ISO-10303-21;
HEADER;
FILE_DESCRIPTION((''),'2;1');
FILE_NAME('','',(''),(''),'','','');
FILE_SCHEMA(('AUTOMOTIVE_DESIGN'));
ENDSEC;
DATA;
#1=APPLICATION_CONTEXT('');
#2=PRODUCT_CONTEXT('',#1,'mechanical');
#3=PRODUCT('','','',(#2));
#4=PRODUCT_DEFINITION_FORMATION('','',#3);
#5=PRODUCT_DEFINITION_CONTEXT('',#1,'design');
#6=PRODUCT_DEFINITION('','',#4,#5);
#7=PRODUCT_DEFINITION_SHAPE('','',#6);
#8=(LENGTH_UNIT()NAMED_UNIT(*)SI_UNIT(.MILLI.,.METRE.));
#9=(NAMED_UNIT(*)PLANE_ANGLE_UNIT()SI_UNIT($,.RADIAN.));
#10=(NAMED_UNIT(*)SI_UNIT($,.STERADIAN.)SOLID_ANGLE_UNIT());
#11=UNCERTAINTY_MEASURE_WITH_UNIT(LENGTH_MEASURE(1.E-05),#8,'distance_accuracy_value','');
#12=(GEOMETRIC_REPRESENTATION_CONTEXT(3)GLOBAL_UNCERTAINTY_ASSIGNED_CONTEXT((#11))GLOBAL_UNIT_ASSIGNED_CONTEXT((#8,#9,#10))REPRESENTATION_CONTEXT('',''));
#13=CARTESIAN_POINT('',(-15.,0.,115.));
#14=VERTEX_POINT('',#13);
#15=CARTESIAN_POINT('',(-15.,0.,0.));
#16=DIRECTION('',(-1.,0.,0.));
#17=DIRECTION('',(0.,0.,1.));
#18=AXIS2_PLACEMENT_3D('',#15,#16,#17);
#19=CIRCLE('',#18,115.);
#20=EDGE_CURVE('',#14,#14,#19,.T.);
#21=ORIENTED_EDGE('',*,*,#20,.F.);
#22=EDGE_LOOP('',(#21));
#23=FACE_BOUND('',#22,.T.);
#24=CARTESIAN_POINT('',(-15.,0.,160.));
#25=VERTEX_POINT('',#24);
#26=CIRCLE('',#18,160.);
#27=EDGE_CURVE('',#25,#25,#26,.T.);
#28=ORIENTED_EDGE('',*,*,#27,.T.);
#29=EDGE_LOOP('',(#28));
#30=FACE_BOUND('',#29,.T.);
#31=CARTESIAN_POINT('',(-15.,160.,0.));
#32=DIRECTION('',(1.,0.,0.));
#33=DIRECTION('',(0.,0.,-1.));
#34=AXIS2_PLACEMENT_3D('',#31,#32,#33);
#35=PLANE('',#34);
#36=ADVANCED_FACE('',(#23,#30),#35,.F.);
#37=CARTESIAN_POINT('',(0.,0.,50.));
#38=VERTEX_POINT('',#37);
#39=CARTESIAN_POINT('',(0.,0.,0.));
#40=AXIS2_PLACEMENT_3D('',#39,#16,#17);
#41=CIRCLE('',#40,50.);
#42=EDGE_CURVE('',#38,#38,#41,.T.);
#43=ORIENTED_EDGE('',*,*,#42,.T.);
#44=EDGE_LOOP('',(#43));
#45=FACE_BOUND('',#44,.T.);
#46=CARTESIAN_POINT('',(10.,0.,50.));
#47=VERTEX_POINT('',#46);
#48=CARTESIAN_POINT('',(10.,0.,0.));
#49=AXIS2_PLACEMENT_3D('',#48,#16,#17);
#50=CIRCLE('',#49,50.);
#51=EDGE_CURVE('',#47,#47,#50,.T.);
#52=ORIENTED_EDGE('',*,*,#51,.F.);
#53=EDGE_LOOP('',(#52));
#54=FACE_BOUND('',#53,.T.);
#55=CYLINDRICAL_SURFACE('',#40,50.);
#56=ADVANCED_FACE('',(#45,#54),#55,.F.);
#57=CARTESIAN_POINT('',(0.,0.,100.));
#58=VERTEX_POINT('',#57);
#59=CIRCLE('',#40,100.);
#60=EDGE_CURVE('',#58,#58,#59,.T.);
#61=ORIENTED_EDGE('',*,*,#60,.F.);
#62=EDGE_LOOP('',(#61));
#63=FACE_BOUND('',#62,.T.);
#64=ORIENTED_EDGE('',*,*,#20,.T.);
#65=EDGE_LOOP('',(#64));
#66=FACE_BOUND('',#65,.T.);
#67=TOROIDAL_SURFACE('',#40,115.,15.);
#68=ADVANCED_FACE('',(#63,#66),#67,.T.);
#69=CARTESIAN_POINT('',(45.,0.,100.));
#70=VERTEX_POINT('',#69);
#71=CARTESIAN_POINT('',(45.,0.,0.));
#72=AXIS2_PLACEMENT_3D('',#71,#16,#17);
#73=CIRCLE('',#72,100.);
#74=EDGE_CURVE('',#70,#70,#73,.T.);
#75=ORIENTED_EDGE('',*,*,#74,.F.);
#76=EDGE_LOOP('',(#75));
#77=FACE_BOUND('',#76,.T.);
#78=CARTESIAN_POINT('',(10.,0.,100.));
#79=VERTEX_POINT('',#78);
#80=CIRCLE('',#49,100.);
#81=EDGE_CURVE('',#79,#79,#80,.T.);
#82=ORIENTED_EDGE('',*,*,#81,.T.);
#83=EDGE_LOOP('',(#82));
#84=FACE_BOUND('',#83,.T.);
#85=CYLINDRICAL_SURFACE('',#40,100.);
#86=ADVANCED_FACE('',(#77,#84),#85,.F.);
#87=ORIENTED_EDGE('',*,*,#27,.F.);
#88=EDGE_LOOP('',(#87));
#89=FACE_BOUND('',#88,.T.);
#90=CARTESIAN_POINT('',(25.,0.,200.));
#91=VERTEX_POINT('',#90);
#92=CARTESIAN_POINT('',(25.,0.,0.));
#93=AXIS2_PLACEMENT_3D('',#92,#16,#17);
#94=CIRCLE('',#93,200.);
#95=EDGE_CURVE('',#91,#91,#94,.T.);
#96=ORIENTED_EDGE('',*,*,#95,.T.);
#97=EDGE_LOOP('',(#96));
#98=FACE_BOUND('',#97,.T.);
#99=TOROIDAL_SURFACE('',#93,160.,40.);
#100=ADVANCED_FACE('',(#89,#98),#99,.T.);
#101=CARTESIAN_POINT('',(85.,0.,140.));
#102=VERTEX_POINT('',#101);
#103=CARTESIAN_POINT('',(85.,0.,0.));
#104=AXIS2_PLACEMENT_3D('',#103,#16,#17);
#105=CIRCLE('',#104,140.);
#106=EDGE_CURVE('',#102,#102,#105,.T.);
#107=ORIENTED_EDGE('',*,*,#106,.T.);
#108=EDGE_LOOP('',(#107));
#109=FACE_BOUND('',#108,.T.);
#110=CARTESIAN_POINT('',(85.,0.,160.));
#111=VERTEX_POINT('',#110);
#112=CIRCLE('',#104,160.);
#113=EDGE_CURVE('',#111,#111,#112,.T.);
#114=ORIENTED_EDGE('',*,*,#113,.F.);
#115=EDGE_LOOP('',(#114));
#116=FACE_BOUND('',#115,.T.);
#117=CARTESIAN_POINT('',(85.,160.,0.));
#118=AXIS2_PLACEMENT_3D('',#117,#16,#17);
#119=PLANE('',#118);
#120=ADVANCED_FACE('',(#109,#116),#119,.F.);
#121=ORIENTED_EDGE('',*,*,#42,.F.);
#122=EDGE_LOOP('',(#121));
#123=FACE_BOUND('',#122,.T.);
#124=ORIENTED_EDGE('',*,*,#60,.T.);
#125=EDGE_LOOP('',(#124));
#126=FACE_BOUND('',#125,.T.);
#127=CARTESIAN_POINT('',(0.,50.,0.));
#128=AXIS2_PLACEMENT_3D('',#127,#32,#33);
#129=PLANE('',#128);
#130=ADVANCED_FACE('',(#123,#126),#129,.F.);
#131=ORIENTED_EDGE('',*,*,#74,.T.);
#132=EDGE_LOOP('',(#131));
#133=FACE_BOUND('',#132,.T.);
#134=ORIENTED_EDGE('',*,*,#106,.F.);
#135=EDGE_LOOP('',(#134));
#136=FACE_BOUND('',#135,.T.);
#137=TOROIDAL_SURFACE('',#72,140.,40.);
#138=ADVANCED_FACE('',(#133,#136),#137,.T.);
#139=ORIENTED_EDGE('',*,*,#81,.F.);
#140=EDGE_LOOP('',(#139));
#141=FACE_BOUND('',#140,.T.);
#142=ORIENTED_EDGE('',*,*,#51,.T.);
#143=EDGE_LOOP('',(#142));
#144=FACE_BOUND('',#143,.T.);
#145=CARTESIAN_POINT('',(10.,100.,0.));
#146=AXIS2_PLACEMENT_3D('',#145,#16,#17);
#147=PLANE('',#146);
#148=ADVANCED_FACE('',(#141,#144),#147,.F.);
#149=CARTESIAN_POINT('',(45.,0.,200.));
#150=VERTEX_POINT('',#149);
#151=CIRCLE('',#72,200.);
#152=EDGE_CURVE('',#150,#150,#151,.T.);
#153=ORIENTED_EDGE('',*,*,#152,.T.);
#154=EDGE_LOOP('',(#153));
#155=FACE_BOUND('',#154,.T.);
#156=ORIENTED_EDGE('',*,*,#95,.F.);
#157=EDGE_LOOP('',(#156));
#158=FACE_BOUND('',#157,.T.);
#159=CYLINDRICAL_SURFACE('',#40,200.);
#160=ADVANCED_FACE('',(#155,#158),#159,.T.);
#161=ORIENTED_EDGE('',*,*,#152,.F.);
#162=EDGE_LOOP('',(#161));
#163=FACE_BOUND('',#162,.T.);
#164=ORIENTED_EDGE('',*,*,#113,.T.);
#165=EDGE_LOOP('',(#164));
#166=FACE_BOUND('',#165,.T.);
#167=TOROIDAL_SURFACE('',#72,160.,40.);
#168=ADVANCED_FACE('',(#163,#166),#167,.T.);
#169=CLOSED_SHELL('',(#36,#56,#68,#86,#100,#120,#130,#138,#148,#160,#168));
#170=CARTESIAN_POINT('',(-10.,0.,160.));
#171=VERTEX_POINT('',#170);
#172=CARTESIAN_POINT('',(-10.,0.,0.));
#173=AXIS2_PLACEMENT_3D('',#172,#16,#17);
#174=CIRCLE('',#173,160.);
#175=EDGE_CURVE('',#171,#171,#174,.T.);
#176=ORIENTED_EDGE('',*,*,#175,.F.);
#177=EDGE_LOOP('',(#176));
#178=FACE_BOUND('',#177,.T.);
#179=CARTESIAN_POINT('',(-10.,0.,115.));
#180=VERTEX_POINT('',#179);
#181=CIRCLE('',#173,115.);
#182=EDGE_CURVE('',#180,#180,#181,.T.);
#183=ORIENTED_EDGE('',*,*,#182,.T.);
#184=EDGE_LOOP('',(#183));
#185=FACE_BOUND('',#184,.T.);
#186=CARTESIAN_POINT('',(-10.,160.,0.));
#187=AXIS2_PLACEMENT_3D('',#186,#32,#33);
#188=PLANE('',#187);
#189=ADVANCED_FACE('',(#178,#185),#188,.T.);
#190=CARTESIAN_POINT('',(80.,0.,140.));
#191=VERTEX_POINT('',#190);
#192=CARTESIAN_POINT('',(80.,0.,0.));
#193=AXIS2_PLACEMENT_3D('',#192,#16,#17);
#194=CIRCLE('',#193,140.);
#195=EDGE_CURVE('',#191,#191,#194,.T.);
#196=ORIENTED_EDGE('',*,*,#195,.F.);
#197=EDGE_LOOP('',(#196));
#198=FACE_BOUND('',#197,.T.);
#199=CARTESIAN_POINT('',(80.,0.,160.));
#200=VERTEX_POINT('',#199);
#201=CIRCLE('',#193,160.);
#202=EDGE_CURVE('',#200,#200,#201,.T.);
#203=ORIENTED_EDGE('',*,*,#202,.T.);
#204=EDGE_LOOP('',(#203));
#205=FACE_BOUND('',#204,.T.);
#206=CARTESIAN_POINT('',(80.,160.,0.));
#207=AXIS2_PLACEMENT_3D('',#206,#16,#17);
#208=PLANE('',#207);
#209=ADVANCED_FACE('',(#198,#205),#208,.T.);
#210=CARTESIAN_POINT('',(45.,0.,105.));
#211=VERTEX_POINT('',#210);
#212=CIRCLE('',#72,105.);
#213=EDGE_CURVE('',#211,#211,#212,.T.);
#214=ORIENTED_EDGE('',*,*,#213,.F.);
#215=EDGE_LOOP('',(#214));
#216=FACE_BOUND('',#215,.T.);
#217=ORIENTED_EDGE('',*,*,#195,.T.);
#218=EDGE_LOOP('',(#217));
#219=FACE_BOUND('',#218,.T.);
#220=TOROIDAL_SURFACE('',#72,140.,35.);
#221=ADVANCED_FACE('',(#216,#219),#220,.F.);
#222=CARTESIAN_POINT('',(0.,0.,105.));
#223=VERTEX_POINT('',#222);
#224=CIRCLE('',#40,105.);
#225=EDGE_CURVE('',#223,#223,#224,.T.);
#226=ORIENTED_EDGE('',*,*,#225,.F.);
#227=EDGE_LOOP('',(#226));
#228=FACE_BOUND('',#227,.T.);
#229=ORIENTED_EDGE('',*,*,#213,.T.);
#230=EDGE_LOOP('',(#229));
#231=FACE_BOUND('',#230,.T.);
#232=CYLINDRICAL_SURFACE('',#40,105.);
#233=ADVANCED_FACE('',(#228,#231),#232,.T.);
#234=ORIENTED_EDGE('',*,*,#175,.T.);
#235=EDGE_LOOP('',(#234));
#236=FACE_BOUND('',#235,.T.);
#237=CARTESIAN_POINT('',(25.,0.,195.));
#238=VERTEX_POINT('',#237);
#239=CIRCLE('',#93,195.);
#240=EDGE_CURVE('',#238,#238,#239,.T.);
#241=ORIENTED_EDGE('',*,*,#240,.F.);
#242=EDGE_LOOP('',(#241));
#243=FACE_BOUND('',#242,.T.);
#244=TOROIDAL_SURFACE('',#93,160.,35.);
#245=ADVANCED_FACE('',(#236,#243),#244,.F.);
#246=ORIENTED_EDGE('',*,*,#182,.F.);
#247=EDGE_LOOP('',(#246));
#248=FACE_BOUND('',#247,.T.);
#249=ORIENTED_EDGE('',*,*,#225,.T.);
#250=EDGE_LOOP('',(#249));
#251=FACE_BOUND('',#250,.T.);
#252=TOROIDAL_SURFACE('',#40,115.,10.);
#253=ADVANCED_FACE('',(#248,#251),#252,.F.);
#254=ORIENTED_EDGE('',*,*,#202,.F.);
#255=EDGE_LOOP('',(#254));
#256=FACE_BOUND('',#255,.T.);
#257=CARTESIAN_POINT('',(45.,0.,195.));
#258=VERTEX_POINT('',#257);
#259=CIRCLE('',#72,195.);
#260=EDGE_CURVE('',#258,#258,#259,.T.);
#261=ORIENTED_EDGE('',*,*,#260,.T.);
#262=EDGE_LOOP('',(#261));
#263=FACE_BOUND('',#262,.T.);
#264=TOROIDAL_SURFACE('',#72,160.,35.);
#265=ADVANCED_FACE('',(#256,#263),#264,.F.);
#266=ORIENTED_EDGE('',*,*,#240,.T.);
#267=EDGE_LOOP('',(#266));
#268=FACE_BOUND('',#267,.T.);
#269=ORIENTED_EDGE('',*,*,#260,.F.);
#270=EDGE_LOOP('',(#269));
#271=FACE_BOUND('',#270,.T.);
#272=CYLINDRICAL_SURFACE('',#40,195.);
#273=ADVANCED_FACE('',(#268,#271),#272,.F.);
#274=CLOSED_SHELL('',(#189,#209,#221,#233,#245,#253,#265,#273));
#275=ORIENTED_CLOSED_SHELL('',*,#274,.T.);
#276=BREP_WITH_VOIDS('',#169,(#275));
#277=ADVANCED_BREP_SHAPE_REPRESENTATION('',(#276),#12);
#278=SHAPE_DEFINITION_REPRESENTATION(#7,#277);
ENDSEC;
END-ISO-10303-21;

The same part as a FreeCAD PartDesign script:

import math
import FreeCAD as App
import Part
import Sketcher

V = App.Vector

doc = App.newDocument("Part")
body = doc.addObject("PartDesign::Body", "Body")

# Sketch on XY plane
sketch1 = body.newObject("Sketcher::SketchObject", "Sketch")
sketch1.AttachmentSupport = (doc.getObject("XY_Plane"), [""])
sketch1.MapMode = "FlatFace"
sketch1.addGeometry(Part.LineSegment(V(0, 100, 0), V(0, 50, 0)), False)
sketch1.addGeometry(Part.LineSegment(V(0, 50, 0), V(10, 50, 0)), False)
sketch1.addGeometry(Part.LineSegment(V(10, 50, 0), V(10, 100, 0)), False)
sketch1.addGeometry(Part.LineSegment(V(10, 100, 0), V(45, 100, 0)), False)
sketch1.addGeometry(Part.ArcOfCircle(Part.Circle(V(45, 140, 0), V(0, 0, 1), 40), math.radians(-90), math.radians(0)), False)
sketch1.addGeometry(Part.LineSegment(V(85, 140, 0), V(85, 160, 0)), False)
sketch1.addGeometry(Part.ArcOfCircle(Part.Circle(V(45, 160, 0), V(0, 0, 1), 40), math.radians(0), math.radians(90)), False)
sketch1.addGeometry(Part.LineSegment(V(45, 200, 0), V(25, 200, 0)), False)
sketch1.addGeometry(Part.ArcOfCircle(Part.Circle(V(25, 160, 0), V(0, 0, 1), 40), math.radians(90), math.radians(180)), False)
sketch1.addGeometry(Part.LineSegment(V(-15, 160, 0), V(-15, 115, 0)), False)
sketch1.addGeometry(Part.ArcOfCircle(Part.Circle(V(0, 115, 0), V(0, 0, 1), 15), math.radians(180), math.radians(270)), False)
sketch1.addGeometry(Part.LineSegment(V(25, 195, 0), V(45, 195, 0)), False)
sketch1.addGeometry(Part.ArcOfCircle(Part.Circle(V(45, 160, 0), V(0, 0, 1), 35), math.radians(0), math.radians(90)), False)
sketch1.addGeometry(Part.LineSegment(V(80, 160, 0), V(80, 140, 0)), False)
sketch1.addGeometry(Part.ArcOfCircle(Part.Circle(V(45, 140, 0), V(0, 0, 1), 35), math.radians(-90), math.radians(0)), False)
sketch1.addGeometry(Part.LineSegment(V(45, 105, 0), V(0, 105, 0)), False)
sketch1.addGeometry(Part.ArcOfCircle(Part.Circle(V(0, 115, 0), V(0, 0, 1), 10), math.radians(180), math.radians(270)), False)
sketch1.addGeometry(Part.LineSegment(V(-10, 115, 0), V(-10, 160, 0)), False)
sketch1.addGeometry(Part.ArcOfCircle(Part.Circle(V(25, 160, 0), V(0, 0, 1), 35), math.radians(90), math.radians(180)), False)
sketch1.addConstraint(Sketcher.Constraint("Coincident", 0, 2, 1, 1))
sketch1.addConstraint(Sketcher.Constraint("Coincident", 1, 2, 2, 1))
sketch1.addConstraint(Sketcher.Constraint("Coincident", 2, 2, 3, 1))
sketch1.addConstraint(Sketcher.Constraint("Tangent", 3, 2, 4, 1))
sketch1.addConstraint(Sketcher.Constraint("Tangent", 4, 2, 5, 1))
sketch1.addConstraint(Sketcher.Constraint("Tangent", 5, 2, 6, 1))
sketch1.addConstraint(Sketcher.Constraint("Tangent", 6, 2, 7, 1))
sketch1.addConstraint(Sketcher.Constraint("Tangent", 7, 2, 8, 1))
sketch1.addConstraint(Sketcher.Constraint("Tangent", 8, 2, 9, 1))
sketch1.addConstraint(Sketcher.Constraint("Tangent", 9, 2, 10, 1))
sketch1.addConstraint(Sketcher.Constraint("Coincident", 10, 2, 0, 1))
sketch1.addConstraint(Sketcher.Constraint("Tangent", 11, 2, 12, 2))
sketch1.addConstraint(Sketcher.Constraint("Tangent", 12, 1, 13, 1))
sketch1.addConstraint(Sketcher.Constraint("Tangent", 13, 2, 14, 2))
sketch1.addConstraint(Sketcher.Constraint("Tangent", 14, 1, 15, 1))
sketch1.addConstraint(Sketcher.Constraint("Tangent", 15, 2, 16, 2))
sketch1.addConstraint(Sketcher.Constraint("Tangent", 16, 1, 17, 1))
sketch1.addConstraint(Sketcher.Constraint("Tangent", 17, 2, 18, 2))
sketch1.addConstraint(Sketcher.Constraint("Tangent", 18, 1, 11, 1))
sketch1.addConstraint(Sketcher.Constraint("Vertical", 0))
sketch1.addConstraint(Sketcher.Constraint("Horizontal", 1))
sketch1.addConstraint(Sketcher.Constraint("Vertical", 2))
sketch1.addConstraint(Sketcher.Constraint("Horizontal", 3))
sketch1.addConstraint(Sketcher.Constraint("Vertical", 5))
sketch1.addConstraint(Sketcher.Constraint("Horizontal", 7))
sketch1.addConstraint(Sketcher.Constraint("Vertical", 9))
sketch1.addConstraint(Sketcher.Constraint("Horizontal", 11))
sketch1.addConstraint(Sketcher.Constraint("Vertical", 13))
sketch1.addConstraint(Sketcher.Constraint("Horizontal", 15))
sketch1.addConstraint(Sketcher.Constraint("Vertical", 17))
sketch1.addConstraint(Sketcher.Constraint("Coincident", 12, 3, 6, 3))
sketch1.addConstraint(Sketcher.Constraint("Coincident", 14, 3, 4, 3))
sketch1.addConstraint(Sketcher.Constraint("Coincident", 16, 3, 10, 3))
sketch1.addConstraint(Sketcher.Constraint("Coincident", 18, 3, 8, 3))
sketch1.addConstraint(Sketcher.Constraint("Equal", 4, 6))
sketch1.addConstraint(Sketcher.Constraint("Equal", 6, 8))
sketch1.addConstraint(Sketcher.Constraint("PointOnObject", 10, 3, -2))
sketch1.addConstraint(Sketcher.Constraint("PointOnObject", 0, 2, -2))
sketch1.addConstraint(Sketcher.Constraint("Equal", 11, 5))
sketch1.addConstraint(Sketcher.Constraint("Radius", 4, 40.0))
sketch1.addConstraint(Sketcher.Constraint("Radius", 10, 15.0))
sketch1.addConstraint(Sketcher.Constraint("Radius", 12, 35.0))
sketch1.addConstraint(Sketcher.Constraint("DistanceX", 1, 1, 1, 2, 10.0))
sketch1.addConstraint(Sketcher.Constraint("DistanceX", 3, 1, 3, 2, 35.0))
sketch1.addConstraint(Sketcher.Constraint("DistanceY", 0, 2, 0, 1, 50.0))
sketch1.addConstraint(Sketcher.Constraint("DistanceY", -1, 1, 4, 3, 140.0))
revolution = body.newObject("PartDesign::Revolution", "Revolution")
revolution.Profile = sketch1
revolution.ReferenceAxis = (sketch1, ["H_Axis"])
revolution.Angle = 360

doc.recompute()
